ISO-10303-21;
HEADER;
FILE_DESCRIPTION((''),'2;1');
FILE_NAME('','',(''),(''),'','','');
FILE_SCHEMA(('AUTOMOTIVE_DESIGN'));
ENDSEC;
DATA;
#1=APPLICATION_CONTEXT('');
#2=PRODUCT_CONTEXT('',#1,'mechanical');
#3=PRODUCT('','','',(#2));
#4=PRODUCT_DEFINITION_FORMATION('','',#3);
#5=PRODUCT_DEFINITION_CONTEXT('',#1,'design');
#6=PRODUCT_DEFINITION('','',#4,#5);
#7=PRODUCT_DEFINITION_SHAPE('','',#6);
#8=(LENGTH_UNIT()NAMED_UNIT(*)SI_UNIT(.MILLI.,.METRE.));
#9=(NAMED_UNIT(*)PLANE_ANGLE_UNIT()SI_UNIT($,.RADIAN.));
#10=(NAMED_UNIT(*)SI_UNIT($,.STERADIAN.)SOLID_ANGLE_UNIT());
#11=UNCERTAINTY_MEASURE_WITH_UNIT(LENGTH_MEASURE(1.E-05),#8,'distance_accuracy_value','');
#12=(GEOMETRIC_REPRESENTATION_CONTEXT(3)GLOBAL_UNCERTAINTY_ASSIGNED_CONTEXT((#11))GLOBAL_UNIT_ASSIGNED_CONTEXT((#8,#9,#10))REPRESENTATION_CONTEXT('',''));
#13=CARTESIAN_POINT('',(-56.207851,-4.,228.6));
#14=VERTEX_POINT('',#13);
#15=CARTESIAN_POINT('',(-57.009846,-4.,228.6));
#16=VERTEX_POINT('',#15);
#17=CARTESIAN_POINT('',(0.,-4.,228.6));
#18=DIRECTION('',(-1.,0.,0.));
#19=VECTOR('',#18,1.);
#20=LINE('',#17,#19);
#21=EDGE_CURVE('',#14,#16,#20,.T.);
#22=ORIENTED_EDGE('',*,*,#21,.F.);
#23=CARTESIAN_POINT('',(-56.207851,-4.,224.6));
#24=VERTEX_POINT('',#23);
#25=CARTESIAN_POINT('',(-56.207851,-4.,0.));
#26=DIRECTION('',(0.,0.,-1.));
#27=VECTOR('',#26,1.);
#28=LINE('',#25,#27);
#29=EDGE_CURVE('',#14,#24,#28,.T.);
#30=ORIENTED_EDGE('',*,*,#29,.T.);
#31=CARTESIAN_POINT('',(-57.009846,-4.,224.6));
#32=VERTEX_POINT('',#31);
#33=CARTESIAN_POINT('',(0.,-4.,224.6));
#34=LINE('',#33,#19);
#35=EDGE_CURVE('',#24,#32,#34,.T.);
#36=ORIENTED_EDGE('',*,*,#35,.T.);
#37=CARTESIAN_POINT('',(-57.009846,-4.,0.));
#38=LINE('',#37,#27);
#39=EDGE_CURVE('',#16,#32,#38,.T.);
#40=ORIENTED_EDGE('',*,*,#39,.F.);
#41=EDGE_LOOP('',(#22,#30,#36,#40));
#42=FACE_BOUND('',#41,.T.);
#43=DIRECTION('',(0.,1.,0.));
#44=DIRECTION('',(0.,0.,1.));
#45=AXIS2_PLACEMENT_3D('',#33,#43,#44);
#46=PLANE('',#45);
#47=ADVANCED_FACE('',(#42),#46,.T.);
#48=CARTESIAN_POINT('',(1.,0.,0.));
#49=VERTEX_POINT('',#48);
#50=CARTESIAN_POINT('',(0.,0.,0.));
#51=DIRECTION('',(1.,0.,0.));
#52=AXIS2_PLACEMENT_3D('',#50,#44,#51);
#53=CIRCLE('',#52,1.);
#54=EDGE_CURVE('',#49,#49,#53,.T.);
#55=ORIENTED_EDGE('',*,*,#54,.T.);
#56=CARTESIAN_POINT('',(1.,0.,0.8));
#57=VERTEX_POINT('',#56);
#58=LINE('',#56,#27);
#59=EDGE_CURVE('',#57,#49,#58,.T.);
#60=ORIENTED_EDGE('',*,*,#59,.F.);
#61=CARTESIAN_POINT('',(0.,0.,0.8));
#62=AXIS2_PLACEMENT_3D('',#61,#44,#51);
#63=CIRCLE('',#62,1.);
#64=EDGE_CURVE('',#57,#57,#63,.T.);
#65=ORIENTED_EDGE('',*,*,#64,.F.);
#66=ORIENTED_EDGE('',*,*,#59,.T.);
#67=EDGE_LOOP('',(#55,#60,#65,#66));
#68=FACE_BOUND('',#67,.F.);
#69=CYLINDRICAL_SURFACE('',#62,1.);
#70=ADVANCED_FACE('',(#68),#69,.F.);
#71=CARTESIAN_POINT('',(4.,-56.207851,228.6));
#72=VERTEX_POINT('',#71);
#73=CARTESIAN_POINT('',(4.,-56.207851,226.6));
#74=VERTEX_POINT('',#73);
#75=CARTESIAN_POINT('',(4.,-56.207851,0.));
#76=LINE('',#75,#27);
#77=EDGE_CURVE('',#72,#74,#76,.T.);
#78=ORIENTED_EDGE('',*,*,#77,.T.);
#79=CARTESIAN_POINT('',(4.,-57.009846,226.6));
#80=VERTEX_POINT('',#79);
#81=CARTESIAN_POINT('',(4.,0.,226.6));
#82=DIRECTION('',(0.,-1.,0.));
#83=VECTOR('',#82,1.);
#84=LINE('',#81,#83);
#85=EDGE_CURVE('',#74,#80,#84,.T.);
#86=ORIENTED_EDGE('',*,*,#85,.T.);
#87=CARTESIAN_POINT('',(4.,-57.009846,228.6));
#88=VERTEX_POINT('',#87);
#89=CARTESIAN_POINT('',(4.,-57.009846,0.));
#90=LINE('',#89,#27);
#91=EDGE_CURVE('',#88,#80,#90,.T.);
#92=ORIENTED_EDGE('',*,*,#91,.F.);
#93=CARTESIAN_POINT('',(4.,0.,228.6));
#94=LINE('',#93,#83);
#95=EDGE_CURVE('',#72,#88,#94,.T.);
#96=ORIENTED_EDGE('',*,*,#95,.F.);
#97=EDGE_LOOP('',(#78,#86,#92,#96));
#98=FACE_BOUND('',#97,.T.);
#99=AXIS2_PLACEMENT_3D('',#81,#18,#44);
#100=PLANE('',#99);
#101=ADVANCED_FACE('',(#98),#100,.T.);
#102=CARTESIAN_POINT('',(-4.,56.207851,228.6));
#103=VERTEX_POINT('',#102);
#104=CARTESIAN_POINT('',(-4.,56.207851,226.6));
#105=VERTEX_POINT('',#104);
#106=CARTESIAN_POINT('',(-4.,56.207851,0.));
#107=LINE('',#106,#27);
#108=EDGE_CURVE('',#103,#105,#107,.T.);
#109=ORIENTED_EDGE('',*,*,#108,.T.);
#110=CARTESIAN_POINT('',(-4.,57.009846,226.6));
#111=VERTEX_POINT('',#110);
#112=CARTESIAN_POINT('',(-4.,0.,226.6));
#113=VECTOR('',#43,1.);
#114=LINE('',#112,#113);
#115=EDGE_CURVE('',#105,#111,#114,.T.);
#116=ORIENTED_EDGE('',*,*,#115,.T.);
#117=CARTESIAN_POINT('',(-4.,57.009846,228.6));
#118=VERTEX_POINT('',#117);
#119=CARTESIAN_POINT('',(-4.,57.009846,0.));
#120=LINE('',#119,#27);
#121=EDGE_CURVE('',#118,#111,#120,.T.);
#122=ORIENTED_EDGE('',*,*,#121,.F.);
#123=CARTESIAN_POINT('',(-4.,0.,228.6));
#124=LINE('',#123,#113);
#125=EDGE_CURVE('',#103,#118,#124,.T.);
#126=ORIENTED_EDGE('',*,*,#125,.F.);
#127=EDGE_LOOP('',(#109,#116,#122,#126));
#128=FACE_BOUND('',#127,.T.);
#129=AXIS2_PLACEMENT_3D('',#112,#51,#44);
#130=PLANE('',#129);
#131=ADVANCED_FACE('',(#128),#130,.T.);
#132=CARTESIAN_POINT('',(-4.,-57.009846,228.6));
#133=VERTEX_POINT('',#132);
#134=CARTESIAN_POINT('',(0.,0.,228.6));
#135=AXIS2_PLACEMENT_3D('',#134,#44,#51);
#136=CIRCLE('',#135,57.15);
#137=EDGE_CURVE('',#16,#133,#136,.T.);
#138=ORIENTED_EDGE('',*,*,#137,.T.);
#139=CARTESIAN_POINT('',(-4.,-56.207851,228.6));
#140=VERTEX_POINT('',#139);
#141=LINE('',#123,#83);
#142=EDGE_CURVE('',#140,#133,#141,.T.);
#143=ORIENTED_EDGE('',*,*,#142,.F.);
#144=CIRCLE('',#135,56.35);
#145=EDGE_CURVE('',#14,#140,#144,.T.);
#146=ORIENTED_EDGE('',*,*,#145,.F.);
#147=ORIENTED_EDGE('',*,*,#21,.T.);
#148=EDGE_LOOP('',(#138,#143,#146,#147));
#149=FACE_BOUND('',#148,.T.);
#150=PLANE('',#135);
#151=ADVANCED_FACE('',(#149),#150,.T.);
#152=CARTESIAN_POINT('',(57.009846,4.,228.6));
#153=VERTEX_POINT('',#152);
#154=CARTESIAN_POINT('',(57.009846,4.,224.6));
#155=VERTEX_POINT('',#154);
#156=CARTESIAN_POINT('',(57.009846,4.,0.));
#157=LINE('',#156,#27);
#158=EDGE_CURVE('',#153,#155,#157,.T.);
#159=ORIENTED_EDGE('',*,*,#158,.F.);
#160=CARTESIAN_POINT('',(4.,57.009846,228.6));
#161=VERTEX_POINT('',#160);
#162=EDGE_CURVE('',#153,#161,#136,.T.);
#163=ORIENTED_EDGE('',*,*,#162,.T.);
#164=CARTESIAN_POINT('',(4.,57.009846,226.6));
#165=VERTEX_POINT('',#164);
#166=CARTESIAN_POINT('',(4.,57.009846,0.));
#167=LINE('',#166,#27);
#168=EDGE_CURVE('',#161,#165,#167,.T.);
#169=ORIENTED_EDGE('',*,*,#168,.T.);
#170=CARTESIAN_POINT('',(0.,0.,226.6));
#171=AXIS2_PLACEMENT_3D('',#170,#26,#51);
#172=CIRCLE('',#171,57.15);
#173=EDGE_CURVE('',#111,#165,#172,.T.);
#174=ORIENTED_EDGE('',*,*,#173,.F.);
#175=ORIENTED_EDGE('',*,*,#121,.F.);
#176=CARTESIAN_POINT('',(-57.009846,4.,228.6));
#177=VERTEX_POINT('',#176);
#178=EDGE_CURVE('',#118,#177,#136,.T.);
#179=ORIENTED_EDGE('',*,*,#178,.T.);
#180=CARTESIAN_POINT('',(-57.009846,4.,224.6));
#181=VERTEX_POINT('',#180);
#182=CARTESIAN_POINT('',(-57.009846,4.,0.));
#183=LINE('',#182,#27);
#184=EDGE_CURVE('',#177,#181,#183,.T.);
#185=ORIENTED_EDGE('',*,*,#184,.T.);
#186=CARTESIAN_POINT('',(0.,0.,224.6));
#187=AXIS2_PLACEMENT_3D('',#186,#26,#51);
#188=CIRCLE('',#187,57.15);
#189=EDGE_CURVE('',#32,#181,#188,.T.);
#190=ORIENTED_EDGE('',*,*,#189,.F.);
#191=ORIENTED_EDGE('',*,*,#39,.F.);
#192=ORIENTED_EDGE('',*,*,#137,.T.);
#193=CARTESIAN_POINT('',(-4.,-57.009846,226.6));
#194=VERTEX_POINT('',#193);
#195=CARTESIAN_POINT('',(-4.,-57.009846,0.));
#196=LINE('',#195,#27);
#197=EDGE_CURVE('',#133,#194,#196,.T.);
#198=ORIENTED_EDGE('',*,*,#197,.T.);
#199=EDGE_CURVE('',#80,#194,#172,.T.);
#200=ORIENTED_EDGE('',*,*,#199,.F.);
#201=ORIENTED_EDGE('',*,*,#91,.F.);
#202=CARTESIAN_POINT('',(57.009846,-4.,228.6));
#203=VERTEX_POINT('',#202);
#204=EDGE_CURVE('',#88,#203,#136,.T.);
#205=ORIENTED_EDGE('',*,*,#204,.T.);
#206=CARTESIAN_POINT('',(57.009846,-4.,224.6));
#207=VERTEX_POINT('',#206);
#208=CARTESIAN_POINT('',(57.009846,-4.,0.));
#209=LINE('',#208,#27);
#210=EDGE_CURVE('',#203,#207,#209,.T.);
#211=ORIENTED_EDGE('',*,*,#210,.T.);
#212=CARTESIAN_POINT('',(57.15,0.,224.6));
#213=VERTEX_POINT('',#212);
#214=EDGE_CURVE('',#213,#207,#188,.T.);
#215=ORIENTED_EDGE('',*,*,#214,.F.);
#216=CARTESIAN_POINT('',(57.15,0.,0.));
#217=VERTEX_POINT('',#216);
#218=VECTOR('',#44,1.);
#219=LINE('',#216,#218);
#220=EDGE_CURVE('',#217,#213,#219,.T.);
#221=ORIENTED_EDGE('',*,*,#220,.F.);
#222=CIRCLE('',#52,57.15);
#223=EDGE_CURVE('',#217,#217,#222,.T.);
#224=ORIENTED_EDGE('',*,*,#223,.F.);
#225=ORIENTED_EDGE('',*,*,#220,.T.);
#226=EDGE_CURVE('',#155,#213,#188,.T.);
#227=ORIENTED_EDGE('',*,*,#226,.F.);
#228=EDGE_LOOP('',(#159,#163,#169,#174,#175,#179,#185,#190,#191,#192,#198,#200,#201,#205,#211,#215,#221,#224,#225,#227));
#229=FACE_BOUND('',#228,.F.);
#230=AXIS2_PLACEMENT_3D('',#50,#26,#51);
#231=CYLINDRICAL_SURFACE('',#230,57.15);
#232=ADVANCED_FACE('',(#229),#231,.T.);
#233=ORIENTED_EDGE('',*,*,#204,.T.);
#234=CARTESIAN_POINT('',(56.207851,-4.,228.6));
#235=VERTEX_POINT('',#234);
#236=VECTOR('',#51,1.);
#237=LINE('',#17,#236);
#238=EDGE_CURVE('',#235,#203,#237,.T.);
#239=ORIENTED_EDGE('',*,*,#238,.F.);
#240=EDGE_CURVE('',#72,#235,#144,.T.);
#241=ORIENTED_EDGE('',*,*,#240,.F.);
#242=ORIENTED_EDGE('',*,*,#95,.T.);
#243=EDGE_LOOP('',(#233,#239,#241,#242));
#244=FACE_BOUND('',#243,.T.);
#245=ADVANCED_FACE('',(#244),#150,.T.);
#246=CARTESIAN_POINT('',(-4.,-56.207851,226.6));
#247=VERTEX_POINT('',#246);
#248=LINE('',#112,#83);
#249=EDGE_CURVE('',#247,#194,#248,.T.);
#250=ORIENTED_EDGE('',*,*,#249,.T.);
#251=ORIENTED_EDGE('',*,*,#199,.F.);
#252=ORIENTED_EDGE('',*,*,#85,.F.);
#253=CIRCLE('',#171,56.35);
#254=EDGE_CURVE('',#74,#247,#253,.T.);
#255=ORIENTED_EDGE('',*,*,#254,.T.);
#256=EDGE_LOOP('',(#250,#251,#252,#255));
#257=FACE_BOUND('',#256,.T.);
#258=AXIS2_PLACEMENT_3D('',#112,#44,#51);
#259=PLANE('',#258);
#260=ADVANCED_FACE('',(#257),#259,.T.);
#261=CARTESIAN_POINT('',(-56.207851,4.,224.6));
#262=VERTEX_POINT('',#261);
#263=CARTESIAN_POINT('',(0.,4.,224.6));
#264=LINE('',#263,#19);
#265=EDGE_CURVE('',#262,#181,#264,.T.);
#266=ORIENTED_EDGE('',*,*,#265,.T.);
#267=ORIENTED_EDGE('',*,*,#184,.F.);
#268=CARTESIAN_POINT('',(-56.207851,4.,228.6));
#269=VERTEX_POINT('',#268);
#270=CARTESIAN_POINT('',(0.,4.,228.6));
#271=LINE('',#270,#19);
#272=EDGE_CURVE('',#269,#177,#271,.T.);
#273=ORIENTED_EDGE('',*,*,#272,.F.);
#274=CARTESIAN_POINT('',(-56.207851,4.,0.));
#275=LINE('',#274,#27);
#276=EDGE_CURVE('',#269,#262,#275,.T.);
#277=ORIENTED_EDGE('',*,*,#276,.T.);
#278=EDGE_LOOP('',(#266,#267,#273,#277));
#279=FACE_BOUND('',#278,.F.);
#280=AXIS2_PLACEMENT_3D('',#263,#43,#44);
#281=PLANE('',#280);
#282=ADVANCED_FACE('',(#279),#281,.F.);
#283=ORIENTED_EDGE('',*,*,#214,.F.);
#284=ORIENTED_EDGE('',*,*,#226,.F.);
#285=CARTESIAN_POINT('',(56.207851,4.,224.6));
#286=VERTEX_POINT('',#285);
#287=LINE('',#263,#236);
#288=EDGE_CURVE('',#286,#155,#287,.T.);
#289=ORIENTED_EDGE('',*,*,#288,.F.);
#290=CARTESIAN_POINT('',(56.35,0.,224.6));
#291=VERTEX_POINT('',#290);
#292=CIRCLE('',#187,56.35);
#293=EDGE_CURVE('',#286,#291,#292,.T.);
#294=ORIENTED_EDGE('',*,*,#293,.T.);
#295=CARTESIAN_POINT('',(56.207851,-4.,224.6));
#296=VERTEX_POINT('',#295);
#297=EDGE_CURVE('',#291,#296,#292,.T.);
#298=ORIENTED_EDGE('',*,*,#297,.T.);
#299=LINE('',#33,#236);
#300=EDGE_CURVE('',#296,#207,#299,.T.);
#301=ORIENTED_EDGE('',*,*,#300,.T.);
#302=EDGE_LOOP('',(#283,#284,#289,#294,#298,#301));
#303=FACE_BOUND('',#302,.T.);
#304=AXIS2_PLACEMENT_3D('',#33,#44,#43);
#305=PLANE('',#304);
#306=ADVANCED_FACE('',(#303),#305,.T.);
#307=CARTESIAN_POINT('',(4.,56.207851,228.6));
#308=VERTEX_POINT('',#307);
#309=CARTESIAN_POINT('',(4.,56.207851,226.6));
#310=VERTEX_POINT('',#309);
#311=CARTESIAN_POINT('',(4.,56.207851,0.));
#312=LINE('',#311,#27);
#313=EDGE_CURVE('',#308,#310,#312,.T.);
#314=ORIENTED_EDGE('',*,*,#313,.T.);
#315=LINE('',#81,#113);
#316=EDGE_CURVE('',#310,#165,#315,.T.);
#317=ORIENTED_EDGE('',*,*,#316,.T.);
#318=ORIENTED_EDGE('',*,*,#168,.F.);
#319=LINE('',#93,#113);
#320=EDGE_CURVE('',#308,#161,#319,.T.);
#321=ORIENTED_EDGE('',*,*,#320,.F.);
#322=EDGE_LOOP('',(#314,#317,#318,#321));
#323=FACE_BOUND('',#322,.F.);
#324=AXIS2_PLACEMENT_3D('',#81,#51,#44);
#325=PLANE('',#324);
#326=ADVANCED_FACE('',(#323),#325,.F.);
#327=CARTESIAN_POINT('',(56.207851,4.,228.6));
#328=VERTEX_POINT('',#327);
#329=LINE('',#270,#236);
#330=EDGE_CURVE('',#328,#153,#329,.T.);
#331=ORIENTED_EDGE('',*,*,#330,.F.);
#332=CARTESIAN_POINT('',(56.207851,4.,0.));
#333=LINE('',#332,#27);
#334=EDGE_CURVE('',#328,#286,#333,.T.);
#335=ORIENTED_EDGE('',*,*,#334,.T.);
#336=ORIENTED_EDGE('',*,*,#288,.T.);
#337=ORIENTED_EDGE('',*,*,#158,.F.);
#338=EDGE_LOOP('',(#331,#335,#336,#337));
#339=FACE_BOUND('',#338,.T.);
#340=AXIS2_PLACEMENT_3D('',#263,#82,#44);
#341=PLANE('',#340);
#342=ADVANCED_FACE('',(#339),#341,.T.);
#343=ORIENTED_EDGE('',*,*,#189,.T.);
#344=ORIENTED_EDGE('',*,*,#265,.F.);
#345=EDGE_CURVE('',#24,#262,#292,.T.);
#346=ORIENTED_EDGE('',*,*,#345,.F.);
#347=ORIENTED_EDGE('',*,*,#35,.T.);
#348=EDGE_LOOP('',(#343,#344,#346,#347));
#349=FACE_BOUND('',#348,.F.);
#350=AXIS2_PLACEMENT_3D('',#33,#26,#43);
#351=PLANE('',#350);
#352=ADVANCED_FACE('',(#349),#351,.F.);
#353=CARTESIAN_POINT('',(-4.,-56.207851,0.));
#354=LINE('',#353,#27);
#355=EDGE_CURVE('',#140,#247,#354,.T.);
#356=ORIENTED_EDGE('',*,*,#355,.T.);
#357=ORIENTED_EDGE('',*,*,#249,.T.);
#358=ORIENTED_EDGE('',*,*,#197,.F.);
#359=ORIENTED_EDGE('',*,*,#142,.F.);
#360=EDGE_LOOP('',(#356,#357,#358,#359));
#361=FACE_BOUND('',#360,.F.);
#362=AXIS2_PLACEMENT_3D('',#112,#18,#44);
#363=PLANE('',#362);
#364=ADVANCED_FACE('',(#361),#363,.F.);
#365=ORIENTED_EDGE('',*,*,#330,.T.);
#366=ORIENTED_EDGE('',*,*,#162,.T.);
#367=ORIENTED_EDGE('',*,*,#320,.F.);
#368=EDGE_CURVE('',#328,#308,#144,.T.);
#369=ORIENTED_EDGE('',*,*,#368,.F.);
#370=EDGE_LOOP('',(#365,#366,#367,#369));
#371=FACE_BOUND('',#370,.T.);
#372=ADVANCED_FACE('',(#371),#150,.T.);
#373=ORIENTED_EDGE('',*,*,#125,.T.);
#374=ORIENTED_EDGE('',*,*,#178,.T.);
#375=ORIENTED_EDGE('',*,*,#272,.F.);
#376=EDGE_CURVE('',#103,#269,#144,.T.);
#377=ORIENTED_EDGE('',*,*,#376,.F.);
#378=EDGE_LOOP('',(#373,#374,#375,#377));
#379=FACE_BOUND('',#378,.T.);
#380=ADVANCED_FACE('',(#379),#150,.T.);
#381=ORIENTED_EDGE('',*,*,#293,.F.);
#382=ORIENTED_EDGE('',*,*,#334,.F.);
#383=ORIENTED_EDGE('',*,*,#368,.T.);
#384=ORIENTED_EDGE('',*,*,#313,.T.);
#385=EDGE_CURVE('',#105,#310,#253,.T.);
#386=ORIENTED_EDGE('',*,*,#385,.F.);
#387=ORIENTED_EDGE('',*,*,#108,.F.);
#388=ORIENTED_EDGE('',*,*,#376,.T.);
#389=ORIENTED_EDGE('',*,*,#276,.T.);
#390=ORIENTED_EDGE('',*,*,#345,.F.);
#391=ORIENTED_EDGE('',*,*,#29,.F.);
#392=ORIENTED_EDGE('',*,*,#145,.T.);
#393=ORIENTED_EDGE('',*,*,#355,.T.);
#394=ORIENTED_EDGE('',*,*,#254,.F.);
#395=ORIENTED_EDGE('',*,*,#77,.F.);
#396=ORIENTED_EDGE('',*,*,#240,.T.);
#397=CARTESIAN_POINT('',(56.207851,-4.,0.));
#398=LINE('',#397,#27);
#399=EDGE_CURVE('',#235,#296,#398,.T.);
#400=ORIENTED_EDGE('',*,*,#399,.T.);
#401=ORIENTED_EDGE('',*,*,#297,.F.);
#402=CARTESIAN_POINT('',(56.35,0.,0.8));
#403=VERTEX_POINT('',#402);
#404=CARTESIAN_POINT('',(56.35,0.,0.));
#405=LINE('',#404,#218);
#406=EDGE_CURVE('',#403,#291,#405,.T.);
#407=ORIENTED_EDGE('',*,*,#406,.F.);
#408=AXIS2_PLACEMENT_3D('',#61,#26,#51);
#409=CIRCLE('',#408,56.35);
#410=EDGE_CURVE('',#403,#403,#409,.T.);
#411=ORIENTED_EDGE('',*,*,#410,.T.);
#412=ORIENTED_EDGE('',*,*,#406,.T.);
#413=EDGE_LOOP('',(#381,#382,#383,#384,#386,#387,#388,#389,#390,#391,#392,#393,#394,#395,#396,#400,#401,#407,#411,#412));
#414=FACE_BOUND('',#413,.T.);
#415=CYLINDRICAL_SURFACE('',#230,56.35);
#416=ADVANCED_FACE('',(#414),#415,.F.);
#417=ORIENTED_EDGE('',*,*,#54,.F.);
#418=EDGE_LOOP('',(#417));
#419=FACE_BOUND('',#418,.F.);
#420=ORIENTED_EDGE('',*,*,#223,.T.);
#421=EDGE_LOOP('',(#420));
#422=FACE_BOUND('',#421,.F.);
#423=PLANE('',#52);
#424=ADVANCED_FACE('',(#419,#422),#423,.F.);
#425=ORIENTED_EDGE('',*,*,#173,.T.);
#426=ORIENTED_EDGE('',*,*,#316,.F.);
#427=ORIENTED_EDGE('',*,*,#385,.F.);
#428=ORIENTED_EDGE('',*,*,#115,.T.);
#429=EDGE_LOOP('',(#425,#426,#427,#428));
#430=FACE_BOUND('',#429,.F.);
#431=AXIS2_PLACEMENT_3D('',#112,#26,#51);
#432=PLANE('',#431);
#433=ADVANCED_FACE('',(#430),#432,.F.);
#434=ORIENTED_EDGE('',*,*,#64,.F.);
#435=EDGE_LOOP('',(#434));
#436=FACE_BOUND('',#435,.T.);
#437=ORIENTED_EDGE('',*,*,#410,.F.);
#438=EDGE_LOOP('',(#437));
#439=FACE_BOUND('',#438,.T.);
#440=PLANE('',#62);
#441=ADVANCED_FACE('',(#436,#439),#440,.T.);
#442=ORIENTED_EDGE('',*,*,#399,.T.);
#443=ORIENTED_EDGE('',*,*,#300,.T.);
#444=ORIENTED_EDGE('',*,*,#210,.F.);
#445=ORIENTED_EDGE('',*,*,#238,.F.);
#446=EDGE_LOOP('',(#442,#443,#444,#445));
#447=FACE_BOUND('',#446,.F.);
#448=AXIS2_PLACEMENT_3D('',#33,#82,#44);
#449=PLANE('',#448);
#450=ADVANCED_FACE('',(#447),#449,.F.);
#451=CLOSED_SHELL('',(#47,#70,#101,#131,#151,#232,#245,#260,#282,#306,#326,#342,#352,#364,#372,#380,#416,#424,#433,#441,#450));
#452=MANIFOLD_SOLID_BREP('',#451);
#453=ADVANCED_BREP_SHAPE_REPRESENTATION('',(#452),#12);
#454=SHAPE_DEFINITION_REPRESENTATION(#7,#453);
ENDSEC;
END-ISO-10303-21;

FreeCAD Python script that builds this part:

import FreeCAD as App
import Part
import Sketcher


def faces_at(feature, points):
    """Names of the faces that lie closest to the given points."""
    faces = feature.Shape.Faces
    near = lambda p: min(range(len(faces)), key=lambda i: faces[i].distToShape(Part.Vertex(*p))[0])
    return sorted({f"Face{near(p) + 1}" for p in points})

doc = App.newDocument("Part")
body = doc.addObject("PartDesign::Body", "Body")

sketch1 = body.newObject("Sketcher::SketchObject", "Sketch")
sketch1.AttachmentSupport = (doc.getObject("XY_Plane"), [""])
sketch1.MapMode = "FlatFace"
sketch1.addGeometry(Part.Circle(App.Vector(0, 0, 0), App.Vector(0, 0, 1), 57), False)
sketch1.addConstraint([
    Sketcher.Constraint("Coincident", 0, 3, -1, 1),
    Sketcher.Constraint("Diameter", 0, 114.3),
])
pad1 = body.newObject("PartDesign::Pad", "Pad")
pad1.Profile = sketch1
pad1.Length = 228.6
doc.recompute()

thickness = body.newObject("PartDesign::Thickness", "Thickness")
thickness.Base = (pad1, faces_at(pad1, [(0, 0, 228.6)]))
thickness.Value = 0.8
thickness.Reversed = True
thickness.Join = "Arc"

sketch2 = body.newObject("Sketcher::SketchObject", "Sketch001")
sketch2.AttachmentSupport = (doc.getObject("XY_Plane"), [""])
sketch2.MapMode = "FlatFace"
sketch2.AttachmentOffset = App.Placement(App.Vector(0, 0, 0.8), App.Rotation())
sketch2.addGeometry(Part.Circle(App.Vector(0, 0, 0), App.Vector(0, 0, 1), 1), False)
sketch2.addConstraint([
    Sketcher.Constraint("Coincident", 0, 3, -1, 1),
    Sketcher.Constraint("Diameter", 0, 2.0),
])
pocket1 = body.newObject("PartDesign::Pocket", "Pocket")
pocket1.Profile = sketch2
pocket1.Type = "ThroughAll"

sketch3 = body.newObject("Sketcher::SketchObject", "Sketch002")
sketch3.AttachmentSupport = (doc.getObject("XZ_Plane"), [""])
sketch3.MapMode = "FlatFace"
sketch3.addGeometry([
    Part.LineSegment(App.Vector(-4, 228.6, 0), App.Vector(-4, 226.6, 0)),
    Part.LineSegment(App.Vector(-4, 226.6, 0), App.Vector(4, 226.6, 0)),
    Part.LineSegment(App.Vector(4, 226.6, 0), App.Vector(4, 228.6, 0)),
    Part.LineSegment(App.Vector(4, 228.6, 0), App.Vector(-4, 228.6, 0)),
], False)
sketch3.addConstraint([
    Sketcher.Constraint("Coincident", 0, 2, 1, 1),
    Sketcher.Constraint("Coincident", 1, 2, 2, 1),
    Sketcher.Constraint("Coincident", 2, 2, 3, 1),
    Sketcher.Constraint("Coincident", 3, 2, 0, 1),
    Sketcher.Constraint("Vertical", 0),
    Sketcher.Constraint("Horizontal", 1),
    Sketcher.Constraint("Vertical", 2),
    Sketcher.Constraint("Horizontal", 3),
    Sketcher.Constraint("DistanceX", 1, 1, 1, 2, 8.0),
    Sketcher.Constraint("DistanceY", 0, 2, 0, 1, 2.0),
    Sketcher.Constraint("DistanceX", 0, 2, -1, 1, 4.0),
    Sketcher.Constraint("DistanceY", -1, 1, 0, 2, 226.6),
])
pocket2 = body.newObject("PartDesign::Pocket", "Pocket001")
pocket2.Profile = sketch3
pocket2.Type = "ThroughAll"
pocket2.Midplane = True

sketch4 = body.newObject("Sketcher::SketchObject", "Sketch003")
sketch4.AttachmentSupport = (doc.getObject("YZ_Plane"), [""])
sketch4.MapMode = "FlatFace"
sketch4.addGeometry([
    Part.LineSegment(App.Vector(-4, 228.6, 0), App.Vector(-4, 224.6, 0)),
    Part.LineSegment(App.Vector(-4, 224.6, 0), App.Vector(4, 224.6, 0)),
    Part.LineSegment(App.Vector(4, 224.6, 0), App.Vector(4, 228.6, 0)),
    Part.LineSegment(App.Vector(4, 228.6, 0), App.Vector(-4, 228.6, 0)),
], False)
sketch4.addConstraint([
    Sketcher.Constraint("Coincident", 0, 2, 1, 1),
    Sketcher.Constraint("Coincident", 1, 2, 2, 1),
    Sketcher.Constraint("Coincident", 2, 2, 3, 1),
    Sketcher.Constraint("Coincident", 3, 2, 0, 1),
    Sketcher.Constraint("Vertical", 0),
    Sketcher.Constraint("Horizontal", 1),
    Sketcher.Constraint("Vertical", 2),
    Sketcher.Constraint("Horizontal", 3),
    Sketcher.Constraint("DistanceX", 1, 1, 1, 2, 8.0),
    Sketcher.Constraint("DistanceY", 0, 2, 0, 1, 4.0),
    Sketcher.Constraint("DistanceX", 0, 2, -1, 1, 4.0),
    Sketcher.Constraint("DistanceY", -1, 1, 0, 2, 224.6),
])
pocket3 = body.newObject("PartDesign::Pocket", "Pocket002")
pocket3.Profile = sketch4
pocket3.Type = "ThroughAll"
pocket3.Midplane = True

doc.recompute()
